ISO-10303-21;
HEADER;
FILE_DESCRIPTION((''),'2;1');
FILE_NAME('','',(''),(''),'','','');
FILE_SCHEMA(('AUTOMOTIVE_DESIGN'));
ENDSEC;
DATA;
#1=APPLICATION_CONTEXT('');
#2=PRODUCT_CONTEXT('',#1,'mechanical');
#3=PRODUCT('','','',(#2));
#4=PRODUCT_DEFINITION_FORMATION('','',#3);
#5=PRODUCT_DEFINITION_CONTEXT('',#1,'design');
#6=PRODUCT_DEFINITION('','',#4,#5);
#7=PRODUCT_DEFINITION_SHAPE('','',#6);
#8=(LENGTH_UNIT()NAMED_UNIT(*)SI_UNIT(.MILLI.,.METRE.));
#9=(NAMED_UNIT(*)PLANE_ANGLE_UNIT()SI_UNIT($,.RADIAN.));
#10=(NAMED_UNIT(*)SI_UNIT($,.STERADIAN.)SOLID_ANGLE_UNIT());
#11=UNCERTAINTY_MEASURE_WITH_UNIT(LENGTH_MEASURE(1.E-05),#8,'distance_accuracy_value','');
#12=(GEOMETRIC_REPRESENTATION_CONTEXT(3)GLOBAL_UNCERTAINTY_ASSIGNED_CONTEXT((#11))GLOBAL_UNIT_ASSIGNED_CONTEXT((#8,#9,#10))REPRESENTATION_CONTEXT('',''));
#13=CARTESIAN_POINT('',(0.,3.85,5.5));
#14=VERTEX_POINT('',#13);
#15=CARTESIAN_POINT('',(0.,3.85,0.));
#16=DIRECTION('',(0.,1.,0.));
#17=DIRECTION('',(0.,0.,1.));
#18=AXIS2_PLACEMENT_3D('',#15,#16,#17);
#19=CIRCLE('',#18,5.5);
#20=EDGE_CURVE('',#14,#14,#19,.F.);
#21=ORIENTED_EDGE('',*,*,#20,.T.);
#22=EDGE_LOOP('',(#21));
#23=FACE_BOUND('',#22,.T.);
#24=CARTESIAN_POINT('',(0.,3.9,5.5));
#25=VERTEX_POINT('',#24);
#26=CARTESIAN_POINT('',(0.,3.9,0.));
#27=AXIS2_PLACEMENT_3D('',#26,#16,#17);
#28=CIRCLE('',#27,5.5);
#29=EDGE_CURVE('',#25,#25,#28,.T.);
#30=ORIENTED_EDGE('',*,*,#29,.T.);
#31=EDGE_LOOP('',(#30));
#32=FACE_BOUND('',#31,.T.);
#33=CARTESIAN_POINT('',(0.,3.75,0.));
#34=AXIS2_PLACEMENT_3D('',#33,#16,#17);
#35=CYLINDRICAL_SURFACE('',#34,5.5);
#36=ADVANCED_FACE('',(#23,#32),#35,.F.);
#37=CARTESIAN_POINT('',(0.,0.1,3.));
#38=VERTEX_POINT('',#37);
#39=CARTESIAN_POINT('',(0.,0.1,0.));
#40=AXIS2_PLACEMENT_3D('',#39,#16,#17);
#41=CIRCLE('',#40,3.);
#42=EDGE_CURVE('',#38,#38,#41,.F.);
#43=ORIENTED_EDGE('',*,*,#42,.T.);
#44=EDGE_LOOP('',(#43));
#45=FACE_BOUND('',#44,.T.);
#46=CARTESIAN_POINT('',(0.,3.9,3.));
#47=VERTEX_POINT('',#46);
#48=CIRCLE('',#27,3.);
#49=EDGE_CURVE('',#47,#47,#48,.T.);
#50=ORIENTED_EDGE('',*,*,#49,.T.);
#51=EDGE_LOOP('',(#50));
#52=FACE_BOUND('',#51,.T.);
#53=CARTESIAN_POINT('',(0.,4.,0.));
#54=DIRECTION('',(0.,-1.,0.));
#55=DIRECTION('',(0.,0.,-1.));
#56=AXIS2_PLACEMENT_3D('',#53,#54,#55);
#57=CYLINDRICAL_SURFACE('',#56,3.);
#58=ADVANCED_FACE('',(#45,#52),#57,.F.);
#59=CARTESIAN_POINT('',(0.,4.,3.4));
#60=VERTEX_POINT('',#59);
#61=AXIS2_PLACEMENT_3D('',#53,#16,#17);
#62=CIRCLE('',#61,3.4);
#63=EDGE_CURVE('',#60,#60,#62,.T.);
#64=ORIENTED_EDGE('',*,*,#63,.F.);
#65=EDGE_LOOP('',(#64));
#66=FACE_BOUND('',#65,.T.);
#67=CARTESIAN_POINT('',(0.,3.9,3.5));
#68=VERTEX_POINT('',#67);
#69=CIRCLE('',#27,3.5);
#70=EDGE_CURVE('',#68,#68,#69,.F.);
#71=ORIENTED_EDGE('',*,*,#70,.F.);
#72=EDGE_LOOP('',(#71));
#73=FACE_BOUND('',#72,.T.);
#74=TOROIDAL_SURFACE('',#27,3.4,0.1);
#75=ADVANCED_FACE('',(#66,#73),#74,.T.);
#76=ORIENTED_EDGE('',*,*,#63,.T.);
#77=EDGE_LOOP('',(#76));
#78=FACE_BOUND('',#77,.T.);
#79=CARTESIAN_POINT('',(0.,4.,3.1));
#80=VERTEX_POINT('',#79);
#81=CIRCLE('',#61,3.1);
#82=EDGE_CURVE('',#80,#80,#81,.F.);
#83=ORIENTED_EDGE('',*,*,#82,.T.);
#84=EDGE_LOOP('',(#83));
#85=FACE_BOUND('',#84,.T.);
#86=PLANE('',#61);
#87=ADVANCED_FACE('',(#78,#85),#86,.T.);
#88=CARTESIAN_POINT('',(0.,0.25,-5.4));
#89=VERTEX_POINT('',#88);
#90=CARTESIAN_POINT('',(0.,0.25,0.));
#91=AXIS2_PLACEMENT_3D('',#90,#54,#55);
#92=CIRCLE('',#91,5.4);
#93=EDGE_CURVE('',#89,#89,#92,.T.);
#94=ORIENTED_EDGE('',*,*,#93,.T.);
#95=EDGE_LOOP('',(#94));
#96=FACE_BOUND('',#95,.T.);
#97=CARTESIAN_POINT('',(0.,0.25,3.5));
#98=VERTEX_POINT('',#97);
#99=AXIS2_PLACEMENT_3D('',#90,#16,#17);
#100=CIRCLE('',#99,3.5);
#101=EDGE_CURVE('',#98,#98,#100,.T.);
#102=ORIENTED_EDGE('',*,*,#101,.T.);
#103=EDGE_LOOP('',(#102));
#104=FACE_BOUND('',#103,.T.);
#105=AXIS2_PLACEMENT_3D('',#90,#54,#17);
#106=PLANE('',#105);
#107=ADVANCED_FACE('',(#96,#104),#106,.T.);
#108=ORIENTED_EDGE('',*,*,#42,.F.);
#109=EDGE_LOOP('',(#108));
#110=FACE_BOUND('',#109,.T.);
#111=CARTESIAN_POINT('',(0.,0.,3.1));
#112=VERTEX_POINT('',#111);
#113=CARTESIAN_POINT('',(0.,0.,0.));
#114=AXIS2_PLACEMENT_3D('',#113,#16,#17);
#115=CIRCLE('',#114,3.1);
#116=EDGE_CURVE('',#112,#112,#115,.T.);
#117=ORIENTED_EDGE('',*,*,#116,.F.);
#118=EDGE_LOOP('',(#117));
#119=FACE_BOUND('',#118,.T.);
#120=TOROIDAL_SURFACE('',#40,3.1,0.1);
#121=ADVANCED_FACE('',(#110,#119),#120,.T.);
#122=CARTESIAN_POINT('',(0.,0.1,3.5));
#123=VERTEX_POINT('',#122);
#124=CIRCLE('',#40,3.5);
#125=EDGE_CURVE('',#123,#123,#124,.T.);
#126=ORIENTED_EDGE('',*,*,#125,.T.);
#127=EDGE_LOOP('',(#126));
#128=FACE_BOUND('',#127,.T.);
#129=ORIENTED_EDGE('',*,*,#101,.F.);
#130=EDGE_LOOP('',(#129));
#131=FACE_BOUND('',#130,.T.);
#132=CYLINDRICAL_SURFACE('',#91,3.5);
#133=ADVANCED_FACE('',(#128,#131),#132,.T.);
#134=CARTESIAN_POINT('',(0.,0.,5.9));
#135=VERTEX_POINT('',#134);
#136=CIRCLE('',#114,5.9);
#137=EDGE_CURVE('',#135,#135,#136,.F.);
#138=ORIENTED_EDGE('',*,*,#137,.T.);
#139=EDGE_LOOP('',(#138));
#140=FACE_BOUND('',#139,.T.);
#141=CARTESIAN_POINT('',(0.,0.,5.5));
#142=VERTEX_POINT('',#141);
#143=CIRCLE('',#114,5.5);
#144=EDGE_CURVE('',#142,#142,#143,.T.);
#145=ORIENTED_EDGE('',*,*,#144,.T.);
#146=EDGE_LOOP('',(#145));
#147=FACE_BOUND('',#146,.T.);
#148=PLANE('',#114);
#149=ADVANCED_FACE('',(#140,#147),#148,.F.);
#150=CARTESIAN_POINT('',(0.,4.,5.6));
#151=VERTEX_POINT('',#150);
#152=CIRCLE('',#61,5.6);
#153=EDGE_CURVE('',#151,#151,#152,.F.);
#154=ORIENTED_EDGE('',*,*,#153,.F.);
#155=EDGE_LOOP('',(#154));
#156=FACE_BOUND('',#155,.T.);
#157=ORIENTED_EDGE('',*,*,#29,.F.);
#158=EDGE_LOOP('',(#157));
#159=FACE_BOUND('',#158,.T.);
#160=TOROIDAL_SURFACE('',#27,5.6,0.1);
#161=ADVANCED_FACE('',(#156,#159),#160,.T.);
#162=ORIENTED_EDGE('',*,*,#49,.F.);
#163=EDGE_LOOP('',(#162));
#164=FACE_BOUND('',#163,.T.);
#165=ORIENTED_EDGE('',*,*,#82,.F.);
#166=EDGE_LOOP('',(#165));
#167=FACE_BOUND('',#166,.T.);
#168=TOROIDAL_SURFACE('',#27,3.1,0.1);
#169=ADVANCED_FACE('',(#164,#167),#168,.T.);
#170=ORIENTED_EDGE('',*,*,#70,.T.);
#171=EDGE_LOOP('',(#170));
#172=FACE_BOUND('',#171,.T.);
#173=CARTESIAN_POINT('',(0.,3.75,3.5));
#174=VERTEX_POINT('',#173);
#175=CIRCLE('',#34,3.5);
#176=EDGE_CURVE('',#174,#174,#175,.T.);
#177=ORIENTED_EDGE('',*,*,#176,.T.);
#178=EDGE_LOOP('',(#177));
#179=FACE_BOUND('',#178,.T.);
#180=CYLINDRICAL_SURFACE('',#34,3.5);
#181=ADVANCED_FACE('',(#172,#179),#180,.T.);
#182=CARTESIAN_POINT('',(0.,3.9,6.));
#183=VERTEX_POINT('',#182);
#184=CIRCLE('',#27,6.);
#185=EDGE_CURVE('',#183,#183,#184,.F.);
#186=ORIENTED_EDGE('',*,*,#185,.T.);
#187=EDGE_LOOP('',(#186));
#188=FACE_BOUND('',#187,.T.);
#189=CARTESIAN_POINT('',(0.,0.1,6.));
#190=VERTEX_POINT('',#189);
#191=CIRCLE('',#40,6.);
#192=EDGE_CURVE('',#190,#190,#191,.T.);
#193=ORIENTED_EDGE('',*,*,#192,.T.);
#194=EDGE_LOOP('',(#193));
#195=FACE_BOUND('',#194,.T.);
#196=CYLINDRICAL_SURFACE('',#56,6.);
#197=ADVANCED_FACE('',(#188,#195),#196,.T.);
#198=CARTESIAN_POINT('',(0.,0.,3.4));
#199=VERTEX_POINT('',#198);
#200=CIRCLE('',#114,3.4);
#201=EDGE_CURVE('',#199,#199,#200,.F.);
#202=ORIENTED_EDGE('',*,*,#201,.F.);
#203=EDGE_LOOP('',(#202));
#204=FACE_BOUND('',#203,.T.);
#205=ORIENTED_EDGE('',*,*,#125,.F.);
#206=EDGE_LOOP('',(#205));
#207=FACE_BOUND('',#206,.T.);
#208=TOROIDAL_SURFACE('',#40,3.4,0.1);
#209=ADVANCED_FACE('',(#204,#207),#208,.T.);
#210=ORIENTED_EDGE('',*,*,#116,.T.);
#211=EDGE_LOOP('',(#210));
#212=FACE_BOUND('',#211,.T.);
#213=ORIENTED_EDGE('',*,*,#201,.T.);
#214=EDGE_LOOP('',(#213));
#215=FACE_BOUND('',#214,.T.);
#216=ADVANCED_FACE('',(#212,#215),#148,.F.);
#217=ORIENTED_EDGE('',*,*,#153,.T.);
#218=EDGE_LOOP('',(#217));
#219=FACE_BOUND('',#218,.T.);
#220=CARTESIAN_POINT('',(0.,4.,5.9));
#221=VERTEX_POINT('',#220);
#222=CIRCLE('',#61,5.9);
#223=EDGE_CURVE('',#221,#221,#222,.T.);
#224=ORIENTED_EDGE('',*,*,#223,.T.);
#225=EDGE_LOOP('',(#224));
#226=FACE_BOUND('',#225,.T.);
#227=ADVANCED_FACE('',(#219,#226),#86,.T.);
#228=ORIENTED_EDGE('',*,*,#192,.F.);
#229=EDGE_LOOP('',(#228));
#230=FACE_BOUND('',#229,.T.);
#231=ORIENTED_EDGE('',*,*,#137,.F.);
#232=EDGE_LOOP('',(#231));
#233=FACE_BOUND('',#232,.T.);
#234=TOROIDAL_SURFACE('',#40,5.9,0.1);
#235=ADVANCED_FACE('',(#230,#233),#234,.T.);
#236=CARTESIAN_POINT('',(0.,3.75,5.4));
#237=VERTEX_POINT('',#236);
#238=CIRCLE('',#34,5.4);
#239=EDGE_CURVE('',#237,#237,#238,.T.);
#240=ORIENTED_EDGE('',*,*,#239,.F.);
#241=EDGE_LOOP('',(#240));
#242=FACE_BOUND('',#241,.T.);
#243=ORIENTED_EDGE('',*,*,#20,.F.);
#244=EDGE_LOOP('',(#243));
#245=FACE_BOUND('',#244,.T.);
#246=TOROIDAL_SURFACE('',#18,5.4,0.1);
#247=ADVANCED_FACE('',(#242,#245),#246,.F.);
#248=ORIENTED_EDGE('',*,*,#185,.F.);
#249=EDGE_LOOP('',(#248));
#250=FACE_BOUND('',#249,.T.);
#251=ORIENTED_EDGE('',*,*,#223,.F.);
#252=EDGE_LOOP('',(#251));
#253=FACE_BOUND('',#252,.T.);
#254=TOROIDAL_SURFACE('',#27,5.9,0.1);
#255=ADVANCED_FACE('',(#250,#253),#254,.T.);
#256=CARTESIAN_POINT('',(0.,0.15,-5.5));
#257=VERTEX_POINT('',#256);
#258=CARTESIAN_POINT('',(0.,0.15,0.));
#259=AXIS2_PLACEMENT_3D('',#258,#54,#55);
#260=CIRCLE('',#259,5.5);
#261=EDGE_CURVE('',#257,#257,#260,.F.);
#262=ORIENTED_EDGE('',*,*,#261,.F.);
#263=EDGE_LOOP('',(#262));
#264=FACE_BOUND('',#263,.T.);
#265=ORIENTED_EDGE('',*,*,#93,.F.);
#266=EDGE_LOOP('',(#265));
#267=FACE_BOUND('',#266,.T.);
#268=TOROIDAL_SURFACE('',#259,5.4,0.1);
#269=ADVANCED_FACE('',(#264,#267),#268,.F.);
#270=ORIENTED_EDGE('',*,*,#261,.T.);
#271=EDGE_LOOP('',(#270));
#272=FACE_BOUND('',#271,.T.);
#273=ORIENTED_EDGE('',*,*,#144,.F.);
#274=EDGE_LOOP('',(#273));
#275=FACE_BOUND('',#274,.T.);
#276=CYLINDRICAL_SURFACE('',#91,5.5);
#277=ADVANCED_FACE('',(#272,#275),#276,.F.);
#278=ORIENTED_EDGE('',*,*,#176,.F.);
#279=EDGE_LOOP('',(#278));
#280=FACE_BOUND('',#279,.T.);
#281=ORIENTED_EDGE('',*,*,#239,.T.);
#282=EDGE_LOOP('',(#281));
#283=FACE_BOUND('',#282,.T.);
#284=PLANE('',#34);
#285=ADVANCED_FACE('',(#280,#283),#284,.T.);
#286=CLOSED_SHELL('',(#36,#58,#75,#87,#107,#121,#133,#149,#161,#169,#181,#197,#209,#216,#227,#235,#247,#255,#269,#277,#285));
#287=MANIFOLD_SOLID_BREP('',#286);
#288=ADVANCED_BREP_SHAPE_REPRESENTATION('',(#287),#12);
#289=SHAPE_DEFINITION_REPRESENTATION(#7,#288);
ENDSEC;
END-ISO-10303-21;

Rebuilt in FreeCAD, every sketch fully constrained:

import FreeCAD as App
import Part
import Sketcher
Q = App.Units.Quantity


def edges_at(feature, points):
    """Names of the edges that pass closest to the given points."""
    edges = feature.Shape.Edges
    near = lambda p: min(range(len(edges)), key=lambda i: edges[i].distToShape(Part.Vertex(*p))[0])
    return sorted({f"Edge{near(p) + 1}" for p in points})

doc = App.newDocument("Part")
body = doc.addObject("PartDesign::Body", "Body")

sketch1 = body.newObject("Sketcher::SketchObject", "Sketch")
sketch1.AttachmentSupport = (doc.getObject("XZ_Plane"), [""])
sketch1.MapMode = "FlatFace"
sketch1.addGeometry(Part.Circle(App.Vector(0, 0, 0), App.Vector(0, 0, 1), 6), False)
sketch1.addGeometry(Part.Circle(App.Vector(0, 0, 0), App.Vector(0, 0, 1), 3), False)
sketch1.addConstraint(Sketcher.Constraint("Coincident", 0, 3, -1, 1))
sketch1.addConstraint(Sketcher.Constraint("Coincident", 1, 3, -1, 1))
sketch1.addConstraint(Sketcher.Constraint("Diameter", 0, Q("12 mm")))
sketch1.addConstraint(Sketcher.Constraint("Diameter", 1, Q("6 mm")))
pad1 = body.newObject("PartDesign::Pad", "Pad")
pad1.Profile = sketch1
pad1.Length = 4
pad1.Reversed = True

sketch2 = body.newObject("Sketcher::SketchObject", "Sketch001")
sketch2.AttachmentSupport = (doc.getObject("XZ_Plane"), [""])
sketch2.MapMode = "FlatFace"
sketch2.AttachmentOffset = App.Placement(App.Vector(0, 0, -4), App.Rotation())
sketch2.addGeometry(Part.Circle(App.Vector(0, 0, 0), App.Vector(0, 0, 1), 5.5), False)
sketch2.addGeometry(Part.Circle(App.Vector(0, 0, 0), App.Vector(0, 0, 1), 3.5), False)
sketch2.addConstraint(Sketcher.Constraint("Coincident", 0, 3, -1, 1))
sketch2.addConstraint(Sketcher.Constraint("Coincident", 1, 3, -1, 1))
sketch2.addConstraint(Sketcher.Constraint("Diameter", 0, Q("11 mm")))
sketch2.addConstraint(Sketcher.Constraint("Diameter", 1, Q("7 mm")))
pocket1 = body.newObject("PartDesign::Pocket", "Pocket")
pocket1.Profile = sketch2
pocket1.Length = 0.25
pocket1.Reversed = True
doc.recompute()

datumplane = body.newObject("PartDesign::Plane", "DatumPlane")
datumplane.AttachmentSupport = (doc.getObject("XZ_Plane"), [""])
datumplane.MapMode = "FlatFace"
datumplane.AttachmentOffset = App.Placement(App.Vector(0, 0, -2), App.Rotation())
mirrored = body.newObject("PartDesign::Mirrored", "Mirrored")
mirrored.Originals = [pocket1]
mirrored.MirrorPlane = (datumplane, [""])
body.Tip = mirrored
doc.recompute()

fillet = body.newObject("PartDesign::Fillet", "Fillet")
fillet.Base = (mirrored, edges_at(mirrored, [
    (-5.5, 3.75, 0),
    (-5.5, 4, 0),
    (-3.5, 4, 0),
    (-5.5, 0.25, 0),
    (-3.5, 0, 0),
    (-6, 0, 0),
    (-6, 4, 0),
    (-3, 0, 0),
    (-3, 4, 0),
]))
fillet.Radius = 0.1

doc.recompute()
